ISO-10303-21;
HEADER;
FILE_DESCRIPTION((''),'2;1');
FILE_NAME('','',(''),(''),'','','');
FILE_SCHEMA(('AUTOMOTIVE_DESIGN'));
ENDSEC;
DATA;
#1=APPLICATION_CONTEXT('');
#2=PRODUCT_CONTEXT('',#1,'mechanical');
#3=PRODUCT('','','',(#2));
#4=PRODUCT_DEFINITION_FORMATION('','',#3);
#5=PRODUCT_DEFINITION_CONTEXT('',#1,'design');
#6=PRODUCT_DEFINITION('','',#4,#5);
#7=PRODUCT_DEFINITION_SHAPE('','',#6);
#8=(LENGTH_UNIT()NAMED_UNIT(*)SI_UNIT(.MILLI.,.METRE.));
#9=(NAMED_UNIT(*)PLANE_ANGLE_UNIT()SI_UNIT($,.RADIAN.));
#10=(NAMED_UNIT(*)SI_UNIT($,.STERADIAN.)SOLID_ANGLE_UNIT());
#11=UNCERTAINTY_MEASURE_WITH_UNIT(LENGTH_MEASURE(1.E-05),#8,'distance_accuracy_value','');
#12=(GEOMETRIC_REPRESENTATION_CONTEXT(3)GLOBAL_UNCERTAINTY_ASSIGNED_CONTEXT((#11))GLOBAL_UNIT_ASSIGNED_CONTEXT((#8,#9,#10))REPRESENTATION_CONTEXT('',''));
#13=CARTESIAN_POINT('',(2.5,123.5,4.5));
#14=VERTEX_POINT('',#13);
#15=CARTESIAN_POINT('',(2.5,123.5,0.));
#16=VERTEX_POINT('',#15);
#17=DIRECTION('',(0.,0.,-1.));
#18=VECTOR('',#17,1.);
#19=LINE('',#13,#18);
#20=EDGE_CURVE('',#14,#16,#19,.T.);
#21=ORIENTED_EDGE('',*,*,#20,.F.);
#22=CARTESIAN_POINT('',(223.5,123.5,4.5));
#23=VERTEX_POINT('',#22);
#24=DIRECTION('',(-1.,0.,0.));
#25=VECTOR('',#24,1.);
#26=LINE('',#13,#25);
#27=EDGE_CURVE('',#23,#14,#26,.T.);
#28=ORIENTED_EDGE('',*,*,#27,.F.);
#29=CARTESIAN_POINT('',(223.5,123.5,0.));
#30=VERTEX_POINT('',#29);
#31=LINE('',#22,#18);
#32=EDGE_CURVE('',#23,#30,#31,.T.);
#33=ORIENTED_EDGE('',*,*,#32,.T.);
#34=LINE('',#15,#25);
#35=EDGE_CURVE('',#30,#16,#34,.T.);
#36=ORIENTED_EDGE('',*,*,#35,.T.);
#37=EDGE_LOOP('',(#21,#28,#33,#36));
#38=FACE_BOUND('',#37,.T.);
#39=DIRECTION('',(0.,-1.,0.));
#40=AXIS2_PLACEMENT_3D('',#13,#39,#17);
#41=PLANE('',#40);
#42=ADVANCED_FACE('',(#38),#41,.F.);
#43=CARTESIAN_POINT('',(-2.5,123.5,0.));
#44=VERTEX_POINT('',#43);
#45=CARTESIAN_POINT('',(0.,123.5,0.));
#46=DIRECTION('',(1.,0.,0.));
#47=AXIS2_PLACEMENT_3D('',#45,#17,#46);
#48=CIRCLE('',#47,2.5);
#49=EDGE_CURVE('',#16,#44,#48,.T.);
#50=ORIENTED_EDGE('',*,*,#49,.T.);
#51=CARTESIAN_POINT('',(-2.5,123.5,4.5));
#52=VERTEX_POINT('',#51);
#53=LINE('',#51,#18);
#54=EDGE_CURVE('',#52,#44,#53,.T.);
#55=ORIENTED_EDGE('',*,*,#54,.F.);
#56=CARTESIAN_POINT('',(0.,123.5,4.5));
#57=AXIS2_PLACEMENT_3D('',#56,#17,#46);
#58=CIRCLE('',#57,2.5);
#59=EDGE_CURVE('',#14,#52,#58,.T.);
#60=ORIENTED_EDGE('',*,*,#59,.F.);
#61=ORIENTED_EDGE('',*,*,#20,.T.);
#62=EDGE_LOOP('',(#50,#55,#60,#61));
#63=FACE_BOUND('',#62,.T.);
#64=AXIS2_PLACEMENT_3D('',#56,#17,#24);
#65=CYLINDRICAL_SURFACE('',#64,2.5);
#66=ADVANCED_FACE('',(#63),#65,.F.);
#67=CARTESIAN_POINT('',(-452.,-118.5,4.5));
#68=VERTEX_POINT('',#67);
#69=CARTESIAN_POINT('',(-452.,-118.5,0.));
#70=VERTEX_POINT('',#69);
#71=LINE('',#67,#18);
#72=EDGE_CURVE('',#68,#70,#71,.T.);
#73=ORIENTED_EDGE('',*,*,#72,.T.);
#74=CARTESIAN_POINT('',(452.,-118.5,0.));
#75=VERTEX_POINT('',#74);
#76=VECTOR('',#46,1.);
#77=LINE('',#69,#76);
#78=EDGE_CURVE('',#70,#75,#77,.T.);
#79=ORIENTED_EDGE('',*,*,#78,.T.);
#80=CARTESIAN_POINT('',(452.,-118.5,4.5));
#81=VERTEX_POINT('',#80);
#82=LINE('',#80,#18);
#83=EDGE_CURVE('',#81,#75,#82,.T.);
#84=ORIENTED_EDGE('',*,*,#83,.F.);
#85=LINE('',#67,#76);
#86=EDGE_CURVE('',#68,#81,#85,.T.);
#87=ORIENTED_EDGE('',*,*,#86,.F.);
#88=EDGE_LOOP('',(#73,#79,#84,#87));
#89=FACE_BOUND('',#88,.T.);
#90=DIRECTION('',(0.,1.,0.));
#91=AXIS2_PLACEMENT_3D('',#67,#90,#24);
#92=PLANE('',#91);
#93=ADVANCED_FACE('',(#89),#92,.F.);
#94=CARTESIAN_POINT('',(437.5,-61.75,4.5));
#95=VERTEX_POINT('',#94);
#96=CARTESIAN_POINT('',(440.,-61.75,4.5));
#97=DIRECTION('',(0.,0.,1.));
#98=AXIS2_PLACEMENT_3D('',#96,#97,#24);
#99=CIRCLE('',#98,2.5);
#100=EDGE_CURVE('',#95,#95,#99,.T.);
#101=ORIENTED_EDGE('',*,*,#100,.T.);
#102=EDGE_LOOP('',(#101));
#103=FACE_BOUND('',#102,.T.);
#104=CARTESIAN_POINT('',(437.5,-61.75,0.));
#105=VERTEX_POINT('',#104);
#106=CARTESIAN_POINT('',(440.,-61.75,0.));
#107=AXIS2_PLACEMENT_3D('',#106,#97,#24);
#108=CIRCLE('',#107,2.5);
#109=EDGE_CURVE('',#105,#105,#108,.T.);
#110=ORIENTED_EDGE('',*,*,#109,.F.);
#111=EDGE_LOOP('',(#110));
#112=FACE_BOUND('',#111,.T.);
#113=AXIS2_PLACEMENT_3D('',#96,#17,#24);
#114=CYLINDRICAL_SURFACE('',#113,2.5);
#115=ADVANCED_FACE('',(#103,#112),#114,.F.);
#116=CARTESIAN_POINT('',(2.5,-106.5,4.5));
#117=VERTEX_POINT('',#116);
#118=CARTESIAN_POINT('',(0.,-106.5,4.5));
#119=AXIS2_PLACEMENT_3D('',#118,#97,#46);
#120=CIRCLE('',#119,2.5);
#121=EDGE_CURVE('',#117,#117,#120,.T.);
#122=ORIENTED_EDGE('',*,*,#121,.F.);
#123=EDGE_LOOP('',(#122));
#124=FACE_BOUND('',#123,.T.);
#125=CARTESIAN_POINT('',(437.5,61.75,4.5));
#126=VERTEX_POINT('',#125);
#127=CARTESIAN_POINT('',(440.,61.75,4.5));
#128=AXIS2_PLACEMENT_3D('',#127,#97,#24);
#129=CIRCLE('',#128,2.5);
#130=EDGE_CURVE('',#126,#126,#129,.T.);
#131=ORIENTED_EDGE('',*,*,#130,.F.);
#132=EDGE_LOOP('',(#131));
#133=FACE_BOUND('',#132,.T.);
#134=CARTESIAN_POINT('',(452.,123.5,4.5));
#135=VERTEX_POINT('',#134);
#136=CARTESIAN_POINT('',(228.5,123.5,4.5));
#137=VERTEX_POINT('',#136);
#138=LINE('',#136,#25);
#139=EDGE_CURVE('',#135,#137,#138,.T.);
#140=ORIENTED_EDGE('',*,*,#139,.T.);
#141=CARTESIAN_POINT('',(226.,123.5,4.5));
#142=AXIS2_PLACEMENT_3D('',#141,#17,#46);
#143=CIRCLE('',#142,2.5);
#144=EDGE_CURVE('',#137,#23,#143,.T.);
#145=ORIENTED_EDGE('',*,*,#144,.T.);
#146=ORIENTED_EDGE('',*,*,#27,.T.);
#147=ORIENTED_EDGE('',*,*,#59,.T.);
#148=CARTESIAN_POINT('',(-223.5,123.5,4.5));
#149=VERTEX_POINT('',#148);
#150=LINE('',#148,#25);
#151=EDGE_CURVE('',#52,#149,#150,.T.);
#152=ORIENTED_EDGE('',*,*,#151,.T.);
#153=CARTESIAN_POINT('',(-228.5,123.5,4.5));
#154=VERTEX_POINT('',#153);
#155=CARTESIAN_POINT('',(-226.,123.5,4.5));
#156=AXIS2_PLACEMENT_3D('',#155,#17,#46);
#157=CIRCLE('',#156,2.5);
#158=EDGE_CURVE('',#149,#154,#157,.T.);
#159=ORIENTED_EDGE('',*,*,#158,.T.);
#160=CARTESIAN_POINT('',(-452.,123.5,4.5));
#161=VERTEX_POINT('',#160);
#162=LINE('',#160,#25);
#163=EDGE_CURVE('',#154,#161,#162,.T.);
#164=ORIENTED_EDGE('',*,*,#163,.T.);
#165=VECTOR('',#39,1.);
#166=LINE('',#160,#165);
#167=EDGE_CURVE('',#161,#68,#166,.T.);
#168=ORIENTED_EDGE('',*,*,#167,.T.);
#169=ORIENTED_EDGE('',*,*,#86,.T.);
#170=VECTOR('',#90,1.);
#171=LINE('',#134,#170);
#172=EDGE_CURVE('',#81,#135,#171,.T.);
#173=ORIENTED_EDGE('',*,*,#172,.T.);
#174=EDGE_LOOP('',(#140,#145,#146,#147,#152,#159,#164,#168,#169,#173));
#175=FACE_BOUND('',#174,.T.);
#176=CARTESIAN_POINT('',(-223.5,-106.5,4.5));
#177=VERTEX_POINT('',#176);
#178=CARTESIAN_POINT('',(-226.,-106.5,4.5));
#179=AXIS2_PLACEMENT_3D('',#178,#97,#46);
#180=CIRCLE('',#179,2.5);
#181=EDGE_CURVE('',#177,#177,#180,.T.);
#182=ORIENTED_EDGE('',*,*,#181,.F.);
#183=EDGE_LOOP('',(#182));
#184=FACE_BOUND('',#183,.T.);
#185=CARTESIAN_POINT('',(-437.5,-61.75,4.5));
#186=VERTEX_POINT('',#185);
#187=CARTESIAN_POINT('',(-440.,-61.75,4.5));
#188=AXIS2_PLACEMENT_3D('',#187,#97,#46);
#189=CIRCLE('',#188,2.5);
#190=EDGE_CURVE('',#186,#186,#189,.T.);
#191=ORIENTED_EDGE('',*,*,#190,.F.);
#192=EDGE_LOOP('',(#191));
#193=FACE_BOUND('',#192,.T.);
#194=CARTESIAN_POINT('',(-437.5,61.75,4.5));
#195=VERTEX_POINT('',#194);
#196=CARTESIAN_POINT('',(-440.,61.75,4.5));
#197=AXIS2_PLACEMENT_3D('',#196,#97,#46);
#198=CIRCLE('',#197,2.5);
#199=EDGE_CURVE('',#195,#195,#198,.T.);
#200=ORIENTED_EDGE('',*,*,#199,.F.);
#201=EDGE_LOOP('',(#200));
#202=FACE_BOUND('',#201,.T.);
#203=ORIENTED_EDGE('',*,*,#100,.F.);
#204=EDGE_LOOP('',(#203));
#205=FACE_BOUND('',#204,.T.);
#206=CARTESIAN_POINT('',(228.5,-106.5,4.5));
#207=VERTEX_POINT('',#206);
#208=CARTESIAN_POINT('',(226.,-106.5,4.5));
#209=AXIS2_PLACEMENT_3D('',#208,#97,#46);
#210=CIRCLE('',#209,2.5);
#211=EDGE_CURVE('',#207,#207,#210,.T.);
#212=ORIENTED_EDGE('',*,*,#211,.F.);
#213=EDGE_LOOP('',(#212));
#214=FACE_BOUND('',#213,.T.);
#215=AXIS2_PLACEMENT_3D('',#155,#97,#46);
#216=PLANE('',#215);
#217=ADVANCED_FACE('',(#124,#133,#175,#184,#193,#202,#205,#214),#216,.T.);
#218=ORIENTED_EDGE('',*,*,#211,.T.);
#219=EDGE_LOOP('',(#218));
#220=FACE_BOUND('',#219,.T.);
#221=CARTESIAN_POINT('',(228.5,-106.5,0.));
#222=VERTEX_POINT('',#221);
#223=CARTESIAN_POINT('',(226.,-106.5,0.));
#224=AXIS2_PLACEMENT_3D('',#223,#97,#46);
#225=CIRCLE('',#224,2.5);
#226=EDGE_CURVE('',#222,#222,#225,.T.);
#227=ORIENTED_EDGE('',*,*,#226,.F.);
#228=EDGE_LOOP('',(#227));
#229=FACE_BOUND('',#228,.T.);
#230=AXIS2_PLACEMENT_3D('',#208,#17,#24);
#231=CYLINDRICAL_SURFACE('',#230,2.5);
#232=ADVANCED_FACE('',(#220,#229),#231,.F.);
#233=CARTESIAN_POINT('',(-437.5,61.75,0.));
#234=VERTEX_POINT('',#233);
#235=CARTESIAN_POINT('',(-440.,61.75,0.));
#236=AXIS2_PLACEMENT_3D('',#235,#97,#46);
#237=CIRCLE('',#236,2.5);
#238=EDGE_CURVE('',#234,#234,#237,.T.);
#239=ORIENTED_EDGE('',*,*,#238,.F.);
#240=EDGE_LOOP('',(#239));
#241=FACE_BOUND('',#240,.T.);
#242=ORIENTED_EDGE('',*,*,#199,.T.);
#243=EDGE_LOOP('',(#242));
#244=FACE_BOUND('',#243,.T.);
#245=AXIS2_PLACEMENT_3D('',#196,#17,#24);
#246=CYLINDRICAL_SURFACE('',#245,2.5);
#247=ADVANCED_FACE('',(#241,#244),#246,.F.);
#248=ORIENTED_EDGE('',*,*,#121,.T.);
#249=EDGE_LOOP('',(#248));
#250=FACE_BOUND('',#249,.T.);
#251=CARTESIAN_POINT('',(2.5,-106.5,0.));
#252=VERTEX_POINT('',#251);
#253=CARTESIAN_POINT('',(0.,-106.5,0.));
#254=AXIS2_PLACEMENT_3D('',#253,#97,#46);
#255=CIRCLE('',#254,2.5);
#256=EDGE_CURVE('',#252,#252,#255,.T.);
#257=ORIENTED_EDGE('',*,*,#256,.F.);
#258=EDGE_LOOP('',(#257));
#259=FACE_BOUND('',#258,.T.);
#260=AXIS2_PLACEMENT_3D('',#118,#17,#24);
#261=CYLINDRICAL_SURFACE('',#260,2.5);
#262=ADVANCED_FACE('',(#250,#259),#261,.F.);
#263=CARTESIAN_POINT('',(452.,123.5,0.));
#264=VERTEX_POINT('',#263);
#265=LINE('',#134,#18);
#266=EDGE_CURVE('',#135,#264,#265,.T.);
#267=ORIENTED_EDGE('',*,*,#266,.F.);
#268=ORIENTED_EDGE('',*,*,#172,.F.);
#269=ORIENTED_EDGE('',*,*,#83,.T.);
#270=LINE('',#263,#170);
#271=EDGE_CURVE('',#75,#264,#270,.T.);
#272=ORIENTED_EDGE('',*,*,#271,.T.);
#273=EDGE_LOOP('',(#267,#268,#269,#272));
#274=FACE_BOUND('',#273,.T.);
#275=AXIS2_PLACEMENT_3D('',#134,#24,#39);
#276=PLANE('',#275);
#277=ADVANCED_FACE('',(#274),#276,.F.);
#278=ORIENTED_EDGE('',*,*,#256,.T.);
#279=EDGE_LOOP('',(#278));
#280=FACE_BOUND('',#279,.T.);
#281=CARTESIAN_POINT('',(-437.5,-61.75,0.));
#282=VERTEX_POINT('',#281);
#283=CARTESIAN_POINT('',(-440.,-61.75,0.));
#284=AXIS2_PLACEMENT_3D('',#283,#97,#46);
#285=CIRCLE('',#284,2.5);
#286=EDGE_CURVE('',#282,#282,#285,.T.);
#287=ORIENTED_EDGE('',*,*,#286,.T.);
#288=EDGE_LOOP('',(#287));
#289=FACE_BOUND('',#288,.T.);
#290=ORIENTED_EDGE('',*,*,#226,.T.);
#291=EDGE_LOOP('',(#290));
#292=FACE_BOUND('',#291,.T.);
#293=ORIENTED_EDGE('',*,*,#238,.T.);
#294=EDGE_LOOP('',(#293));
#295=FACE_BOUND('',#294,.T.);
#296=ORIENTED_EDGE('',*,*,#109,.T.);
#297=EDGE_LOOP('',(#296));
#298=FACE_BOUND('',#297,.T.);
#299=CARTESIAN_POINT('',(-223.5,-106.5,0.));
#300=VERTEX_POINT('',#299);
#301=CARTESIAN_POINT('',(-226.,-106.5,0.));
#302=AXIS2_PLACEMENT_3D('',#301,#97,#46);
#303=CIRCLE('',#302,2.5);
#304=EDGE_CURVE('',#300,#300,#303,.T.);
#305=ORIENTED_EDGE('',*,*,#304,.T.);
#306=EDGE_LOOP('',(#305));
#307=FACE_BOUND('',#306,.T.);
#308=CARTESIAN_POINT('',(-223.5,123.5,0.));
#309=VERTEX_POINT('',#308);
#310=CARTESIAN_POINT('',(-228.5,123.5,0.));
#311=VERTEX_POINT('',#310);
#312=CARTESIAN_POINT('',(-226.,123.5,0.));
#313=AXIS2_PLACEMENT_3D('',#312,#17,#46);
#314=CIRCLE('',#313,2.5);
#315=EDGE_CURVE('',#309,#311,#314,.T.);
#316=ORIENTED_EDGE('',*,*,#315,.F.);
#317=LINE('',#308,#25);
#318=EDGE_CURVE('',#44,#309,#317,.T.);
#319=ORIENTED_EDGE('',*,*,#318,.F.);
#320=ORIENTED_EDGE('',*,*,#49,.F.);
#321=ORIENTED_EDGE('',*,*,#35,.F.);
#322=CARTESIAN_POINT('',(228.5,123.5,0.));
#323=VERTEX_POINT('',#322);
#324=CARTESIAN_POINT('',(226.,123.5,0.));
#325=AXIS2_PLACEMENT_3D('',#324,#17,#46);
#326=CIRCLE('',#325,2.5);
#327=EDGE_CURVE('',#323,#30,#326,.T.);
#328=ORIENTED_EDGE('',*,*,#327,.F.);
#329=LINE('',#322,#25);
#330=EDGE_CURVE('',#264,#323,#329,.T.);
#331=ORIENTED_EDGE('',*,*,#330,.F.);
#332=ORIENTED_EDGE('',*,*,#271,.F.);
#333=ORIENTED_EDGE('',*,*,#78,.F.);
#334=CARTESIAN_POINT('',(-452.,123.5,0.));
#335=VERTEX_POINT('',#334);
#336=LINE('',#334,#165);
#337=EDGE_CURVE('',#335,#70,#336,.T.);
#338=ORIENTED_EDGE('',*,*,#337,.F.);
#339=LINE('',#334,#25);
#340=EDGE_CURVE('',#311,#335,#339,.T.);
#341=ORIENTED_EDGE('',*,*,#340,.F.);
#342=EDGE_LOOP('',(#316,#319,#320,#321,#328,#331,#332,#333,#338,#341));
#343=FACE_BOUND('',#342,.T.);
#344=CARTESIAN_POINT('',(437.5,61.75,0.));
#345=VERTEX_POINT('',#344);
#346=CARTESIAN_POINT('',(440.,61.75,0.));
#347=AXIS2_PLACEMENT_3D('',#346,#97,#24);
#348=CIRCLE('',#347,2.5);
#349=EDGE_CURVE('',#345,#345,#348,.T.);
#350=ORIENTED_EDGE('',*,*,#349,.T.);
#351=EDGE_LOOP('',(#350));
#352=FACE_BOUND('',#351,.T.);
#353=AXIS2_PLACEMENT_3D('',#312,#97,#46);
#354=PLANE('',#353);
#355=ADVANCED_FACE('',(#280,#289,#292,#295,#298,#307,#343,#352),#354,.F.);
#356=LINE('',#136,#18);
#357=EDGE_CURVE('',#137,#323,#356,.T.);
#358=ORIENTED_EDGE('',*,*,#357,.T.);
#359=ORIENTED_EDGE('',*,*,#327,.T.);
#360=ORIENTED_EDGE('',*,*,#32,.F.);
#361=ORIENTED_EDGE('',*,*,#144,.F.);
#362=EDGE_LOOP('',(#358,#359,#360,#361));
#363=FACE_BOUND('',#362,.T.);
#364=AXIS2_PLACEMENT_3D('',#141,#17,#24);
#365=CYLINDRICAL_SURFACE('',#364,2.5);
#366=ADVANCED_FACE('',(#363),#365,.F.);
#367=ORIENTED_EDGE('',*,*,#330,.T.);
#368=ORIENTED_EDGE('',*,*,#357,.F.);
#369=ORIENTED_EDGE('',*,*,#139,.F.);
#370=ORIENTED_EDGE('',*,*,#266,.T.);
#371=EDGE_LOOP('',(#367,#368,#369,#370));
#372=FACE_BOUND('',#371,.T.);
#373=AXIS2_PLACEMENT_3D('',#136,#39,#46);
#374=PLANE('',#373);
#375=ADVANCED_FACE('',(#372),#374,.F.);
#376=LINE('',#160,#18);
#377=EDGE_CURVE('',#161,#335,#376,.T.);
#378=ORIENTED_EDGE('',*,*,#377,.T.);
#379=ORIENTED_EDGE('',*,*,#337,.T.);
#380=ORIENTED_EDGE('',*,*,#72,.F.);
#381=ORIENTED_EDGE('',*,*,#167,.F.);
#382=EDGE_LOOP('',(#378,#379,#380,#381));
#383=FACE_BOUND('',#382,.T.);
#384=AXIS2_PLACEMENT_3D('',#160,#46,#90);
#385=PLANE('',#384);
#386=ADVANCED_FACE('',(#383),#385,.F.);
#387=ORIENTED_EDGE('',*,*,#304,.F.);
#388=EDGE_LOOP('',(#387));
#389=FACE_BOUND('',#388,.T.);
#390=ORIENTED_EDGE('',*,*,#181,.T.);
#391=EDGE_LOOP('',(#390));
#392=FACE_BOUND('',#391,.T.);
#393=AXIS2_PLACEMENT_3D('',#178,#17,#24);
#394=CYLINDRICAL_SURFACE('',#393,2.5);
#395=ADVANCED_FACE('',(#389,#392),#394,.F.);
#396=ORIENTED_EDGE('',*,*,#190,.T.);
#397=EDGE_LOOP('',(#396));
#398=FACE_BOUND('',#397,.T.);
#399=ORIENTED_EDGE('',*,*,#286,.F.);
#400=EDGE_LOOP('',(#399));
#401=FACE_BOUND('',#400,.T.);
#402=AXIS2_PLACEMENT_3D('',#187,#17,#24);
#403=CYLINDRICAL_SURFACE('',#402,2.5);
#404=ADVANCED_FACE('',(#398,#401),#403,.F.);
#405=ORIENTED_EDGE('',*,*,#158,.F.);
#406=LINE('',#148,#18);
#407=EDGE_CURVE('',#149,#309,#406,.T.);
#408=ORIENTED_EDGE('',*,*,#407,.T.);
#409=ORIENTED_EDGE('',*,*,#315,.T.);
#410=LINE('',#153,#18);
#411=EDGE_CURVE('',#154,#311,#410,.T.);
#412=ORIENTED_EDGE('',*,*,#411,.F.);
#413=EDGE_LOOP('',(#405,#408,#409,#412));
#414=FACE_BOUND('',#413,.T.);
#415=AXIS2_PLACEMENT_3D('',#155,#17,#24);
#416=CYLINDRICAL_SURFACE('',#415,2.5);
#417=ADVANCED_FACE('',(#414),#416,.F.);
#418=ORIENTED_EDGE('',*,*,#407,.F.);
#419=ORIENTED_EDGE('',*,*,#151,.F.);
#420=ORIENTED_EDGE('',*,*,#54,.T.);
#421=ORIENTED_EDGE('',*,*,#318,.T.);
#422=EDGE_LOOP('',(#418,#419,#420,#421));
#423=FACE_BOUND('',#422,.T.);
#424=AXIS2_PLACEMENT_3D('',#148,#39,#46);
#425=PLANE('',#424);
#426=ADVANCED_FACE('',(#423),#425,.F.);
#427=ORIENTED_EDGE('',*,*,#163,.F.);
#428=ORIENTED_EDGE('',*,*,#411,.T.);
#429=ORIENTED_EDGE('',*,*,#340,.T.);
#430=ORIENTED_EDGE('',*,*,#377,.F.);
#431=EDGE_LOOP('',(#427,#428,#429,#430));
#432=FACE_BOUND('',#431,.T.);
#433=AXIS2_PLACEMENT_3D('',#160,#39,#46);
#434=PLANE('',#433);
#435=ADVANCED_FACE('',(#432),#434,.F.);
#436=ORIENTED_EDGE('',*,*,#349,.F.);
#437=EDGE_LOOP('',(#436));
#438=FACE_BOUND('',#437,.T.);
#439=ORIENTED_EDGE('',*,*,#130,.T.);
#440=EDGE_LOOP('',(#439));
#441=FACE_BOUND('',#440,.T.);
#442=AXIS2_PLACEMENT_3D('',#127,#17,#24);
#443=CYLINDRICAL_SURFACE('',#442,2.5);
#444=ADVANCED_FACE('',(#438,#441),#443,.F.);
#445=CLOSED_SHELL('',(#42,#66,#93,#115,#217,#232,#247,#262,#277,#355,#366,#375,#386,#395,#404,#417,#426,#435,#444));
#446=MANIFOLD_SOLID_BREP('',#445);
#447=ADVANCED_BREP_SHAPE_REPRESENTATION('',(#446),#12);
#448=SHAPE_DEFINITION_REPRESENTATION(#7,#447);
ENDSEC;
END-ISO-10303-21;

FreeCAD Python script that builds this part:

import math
import FreeCAD as App
import Part
import Sketcher

doc = App.newDocument("Part")
body = doc.addObject("PartDesign::Body", "Body")

# Sketch on XY plane
sketch1 = doc.addObject("Sketcher::SketchObject", "Sketch")
body.addObject(sketch1)
sketch1.AttachmentSupport = (doc.XY_Plane, [""])
sketch1.MapMode = "FlatFace"
sketch1.addGeometry([
    Part.LineSegment(App.Vector(-452, 123.5, 0), App.Vector(-452, -118.5, 0)),  # 0
    Part.LineSegment(App.Vector(-452, -118.5, 0), App.Vector(452, -118.5, 0)),  # 1
    Part.LineSegment(App.Vector(452, -118.5, 0), App.Vector(452, 123.5, 0)),  # 2
    Part.LineSegment(App.Vector(452, 123.5, 0), App.Vector(228.5, 123.5, 0)),  # 3
    Part.ArcOfCircle(Part.Circle(App.Vector(226, 123.5, 0), App.Vector(0, 0, 1), 2.5), math.radians(180), math.radians(360)),  # 4
    Part.LineSegment(App.Vector(223.5, 123.5, 0), App.Vector(2.5, 123.5, 0)),  # 5
    Part.ArcOfCircle(Part.Circle(App.Vector(0, 123.5, 0), App.Vector(0, 0, 1), 2.5), math.radians(180), math.radians(360)),  # 6
    Part.LineSegment(App.Vector(-2.5, 123.5, 0), App.Vector(-223.5, 123.5, 0)),  # 7
    Part.ArcOfCircle(Part.Circle(App.Vector(-226, 123.5, 0), App.Vector(0, 0, 1), 2.5), math.radians(180), math.radians(360)),  # 8
    Part.LineSegment(App.Vector(-228.5, 123.5, 0), App.Vector(-452, 123.5, 0)),  # 9
    Part.Circle(App.Vector(-226, -106.5, 0), App.Vector(0, 0, 1), 2.5),  # 10
    Part.Circle(App.Vector(-440, -61.8, 0), App.Vector(0, 0, 1), 2.5),  # 11
    Part.Circle(App.Vector(0, -106.5, 0), App.Vector(0, 0, 1), 2.5),  # 12
    Part.Circle(App.Vector(226, -106.5, 0), App.Vector(0, 0, 1), 2.5),  # 13
    Part.Circle(App.Vector(440, -61.8, 0), App.Vector(0, 0, 1), 2.5),  # 14
    Part.Circle(App.Vector(-440, 61.8, 0), App.Vector(0, 0, 1), 2.5),  # 15
    Part.Circle(App.Vector(440, 61.8, 0), App.Vector(0, 0, 1), 2.5),  # 16
], False)
sketch1.addConstraint([
    Sketcher.Constraint("Coincident", 0, 2, 1, 1),
    Sketcher.Constraint("Coincident", 1, 2, 2, 1),
    Sketcher.Constraint("Coincident", 2, 2, 3, 1),
    Sketcher.Constraint("Coincident", 3, 2, 4, 2),
    Sketcher.Constraint("Coincident", 4, 1, 5, 1),
    Sketcher.Constraint("Coincident", 5, 2, 6, 2),
    Sketcher.Constraint("Coincident", 6, 1, 7, 1),
    Sketcher.Constraint("Coincident", 7, 2, 8, 2),
    Sketcher.Constraint("Coincident", 8, 1, 9, 1),
    Sketcher.Constraint("Coincident", 9, 2, 0, 1),
    Sketcher.Constraint("Vertical", 0),
    Sketcher.Constraint("Horizontal", 1),
    Sketcher.Constraint("Vertical", 2),
    Sketcher.Constraint("Horizontal", 3),
    Sketcher.Constraint("Horizontal", 5),
    Sketcher.Constraint("Horizontal", 7),
    Sketcher.Constraint("Horizontal", 9),
    Sketcher.Constraint("Equal", 4, 6),
    Sketcher.Constraint("Equal", 6, 8),
    Sketcher.Constraint("Equal", 8, 10),
    Sketcher.Constraint("Equal", 10, 11),
    Sketcher.Constraint("Equal", 11, 12),
    Sketcher.Constraint("Equal", 12, 13),
    Sketcher.Constraint("Equal", 13, 14),
    Sketcher.Constraint("Equal", 14, 15),
    Sketcher.Constraint("Equal", 15, 16),
    Sketcher.Constraint("Symmetric", 14, 3, 15, 3, -1, 1),
    Sketcher.Constraint("Symmetric", 11, 3, 16, 3, -1, 1),
    Sketcher.Constraint("Symmetric", 4, 3, 8, 3, -2),
    Sketcher.Constraint("Symmetric", 10, 3, 13, 3, -2),
    Sketcher.Constraint("Symmetric", 11, 3, 14, 3, -2),
    Sketcher.Constraint("Symmetric", 5, 2, 6, 1, -2),
    Sketcher.Constraint("Symmetric", 2, 2, 9, 2, -2),
    Sketcher.Constraint("PointOnObject", 12, 3, -2),
    Sketcher.Constraint("Horizontal", 4, 3, 6, 3),
    Sketcher.Constraint("Horizontal", 10, 3, 12, 3),
    Sketcher.Constraint("Horizontal", 8, 3, 2, 2),
    Sketcher.Constraint("Horizontal", 3, 2, 4, 1),
    Sketcher.Constraint("Vertical", 8, 3, 10, 3),
    Sketcher.Constraint("Diameter", 10, 5.0),
    Sketcher.Constraint("DistanceX", 1, 1, 1, 2, 904.0),
    Sketcher.Constraint("DistanceX", 5, 2, 5, 1, 221.0),
    Sketcher.Constraint("DistanceY", 0, 2, 0, 1, 242.0),
    Sketcher.Constraint("DistanceX", 11, 3, -1, 1, 440.0),
    Sketcher.Constraint("DistanceY", 10, 3, 8, 3, 230.0),
    Sketcher.Constraint("DistanceY", -1, 1, 4, 3, 123.5),
    Sketcher.Constraint("DistanceY", 11, 3, 15, 3, 123.5),
])
pad1 = doc.addObject("PartDesign::Pad", "Pad")
body.addObject(pad1)
pad1.Profile = sketch1
pad1.Length = 4.5

doc.recompute()
